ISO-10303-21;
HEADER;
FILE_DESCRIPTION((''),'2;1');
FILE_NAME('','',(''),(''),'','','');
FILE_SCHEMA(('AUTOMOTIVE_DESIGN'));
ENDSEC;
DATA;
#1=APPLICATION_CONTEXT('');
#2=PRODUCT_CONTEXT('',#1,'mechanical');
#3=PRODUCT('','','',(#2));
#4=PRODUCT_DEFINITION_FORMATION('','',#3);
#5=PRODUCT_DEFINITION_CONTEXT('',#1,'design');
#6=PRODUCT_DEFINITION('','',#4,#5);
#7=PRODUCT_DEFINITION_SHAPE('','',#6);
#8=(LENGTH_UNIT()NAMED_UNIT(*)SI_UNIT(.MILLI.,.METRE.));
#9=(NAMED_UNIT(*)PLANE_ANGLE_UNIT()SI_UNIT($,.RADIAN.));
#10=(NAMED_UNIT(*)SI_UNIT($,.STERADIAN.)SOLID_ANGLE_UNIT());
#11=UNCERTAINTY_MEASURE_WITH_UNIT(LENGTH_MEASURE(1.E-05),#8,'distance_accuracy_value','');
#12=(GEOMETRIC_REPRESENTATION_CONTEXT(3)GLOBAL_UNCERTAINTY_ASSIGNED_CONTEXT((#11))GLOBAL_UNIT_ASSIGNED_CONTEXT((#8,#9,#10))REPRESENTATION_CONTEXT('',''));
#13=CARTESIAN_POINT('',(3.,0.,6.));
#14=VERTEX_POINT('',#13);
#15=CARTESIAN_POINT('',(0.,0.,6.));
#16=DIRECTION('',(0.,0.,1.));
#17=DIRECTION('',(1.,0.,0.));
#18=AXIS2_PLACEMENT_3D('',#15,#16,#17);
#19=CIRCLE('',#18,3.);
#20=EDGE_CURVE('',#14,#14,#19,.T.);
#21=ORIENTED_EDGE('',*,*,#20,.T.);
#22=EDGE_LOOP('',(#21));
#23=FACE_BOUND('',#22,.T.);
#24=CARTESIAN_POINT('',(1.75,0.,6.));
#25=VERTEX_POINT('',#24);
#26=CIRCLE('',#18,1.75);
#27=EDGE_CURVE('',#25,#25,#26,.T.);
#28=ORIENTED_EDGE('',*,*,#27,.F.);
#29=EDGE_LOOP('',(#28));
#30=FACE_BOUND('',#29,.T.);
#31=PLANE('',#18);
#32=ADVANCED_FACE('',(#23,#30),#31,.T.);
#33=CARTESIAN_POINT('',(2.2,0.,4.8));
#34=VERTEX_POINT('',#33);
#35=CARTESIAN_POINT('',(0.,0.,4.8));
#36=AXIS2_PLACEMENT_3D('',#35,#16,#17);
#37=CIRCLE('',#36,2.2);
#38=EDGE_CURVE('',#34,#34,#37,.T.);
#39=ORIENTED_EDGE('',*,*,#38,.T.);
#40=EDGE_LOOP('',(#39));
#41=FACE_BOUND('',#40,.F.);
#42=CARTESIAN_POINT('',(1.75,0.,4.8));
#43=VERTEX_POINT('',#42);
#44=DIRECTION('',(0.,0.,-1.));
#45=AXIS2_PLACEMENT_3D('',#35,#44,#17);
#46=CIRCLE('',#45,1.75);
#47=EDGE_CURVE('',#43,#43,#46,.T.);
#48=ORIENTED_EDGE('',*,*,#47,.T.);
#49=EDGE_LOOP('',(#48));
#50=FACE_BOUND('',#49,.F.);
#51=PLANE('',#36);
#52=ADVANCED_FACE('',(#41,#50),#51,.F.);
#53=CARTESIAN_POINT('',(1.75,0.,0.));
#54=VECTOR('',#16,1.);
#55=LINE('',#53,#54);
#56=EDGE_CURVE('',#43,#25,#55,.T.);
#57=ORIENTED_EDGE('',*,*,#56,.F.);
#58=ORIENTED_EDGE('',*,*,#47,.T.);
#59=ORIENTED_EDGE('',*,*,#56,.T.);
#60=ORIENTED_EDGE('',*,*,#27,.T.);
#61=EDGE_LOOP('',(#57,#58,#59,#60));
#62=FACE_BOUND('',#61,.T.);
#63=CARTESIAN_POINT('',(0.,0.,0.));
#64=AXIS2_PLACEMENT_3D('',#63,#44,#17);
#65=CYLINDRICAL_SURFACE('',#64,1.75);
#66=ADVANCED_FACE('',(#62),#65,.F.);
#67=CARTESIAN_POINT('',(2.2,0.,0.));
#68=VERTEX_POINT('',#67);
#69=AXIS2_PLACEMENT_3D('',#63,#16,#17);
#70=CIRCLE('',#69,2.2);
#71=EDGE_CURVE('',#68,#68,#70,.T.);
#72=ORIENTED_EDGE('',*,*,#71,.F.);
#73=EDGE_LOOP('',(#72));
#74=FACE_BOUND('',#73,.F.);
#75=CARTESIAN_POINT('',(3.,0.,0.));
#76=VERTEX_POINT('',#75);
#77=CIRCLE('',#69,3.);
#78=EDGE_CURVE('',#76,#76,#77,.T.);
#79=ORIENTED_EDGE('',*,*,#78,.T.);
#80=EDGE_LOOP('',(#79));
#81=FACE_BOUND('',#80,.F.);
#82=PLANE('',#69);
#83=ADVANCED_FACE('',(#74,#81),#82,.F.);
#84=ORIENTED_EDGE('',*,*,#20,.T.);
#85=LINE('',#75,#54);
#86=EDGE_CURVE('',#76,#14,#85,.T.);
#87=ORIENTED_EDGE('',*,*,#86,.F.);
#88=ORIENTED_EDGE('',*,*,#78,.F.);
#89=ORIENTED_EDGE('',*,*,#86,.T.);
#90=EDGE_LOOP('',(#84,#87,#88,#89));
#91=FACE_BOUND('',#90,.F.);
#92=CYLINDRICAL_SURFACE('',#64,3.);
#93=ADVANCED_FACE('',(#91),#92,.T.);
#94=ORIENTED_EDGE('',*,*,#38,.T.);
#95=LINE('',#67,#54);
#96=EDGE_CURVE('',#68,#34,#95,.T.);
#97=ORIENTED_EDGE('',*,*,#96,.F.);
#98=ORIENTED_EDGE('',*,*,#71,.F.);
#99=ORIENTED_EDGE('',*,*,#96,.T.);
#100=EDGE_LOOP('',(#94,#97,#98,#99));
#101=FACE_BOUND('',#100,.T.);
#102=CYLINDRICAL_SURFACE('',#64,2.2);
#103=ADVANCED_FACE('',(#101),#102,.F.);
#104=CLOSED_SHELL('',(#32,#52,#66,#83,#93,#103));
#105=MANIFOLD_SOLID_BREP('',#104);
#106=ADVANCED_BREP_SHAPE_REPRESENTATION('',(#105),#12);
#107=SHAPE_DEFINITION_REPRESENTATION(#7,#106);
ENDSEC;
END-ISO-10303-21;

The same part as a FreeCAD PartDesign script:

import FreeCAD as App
import Part
import Sketcher
from FreeCAD import Vector
Q = App.Units.Quantity

doc = App.newDocument("Part")
params = doc.addObject("Spreadsheet::Sheet", "Params")
for row, (alias, value) in enumerate([
    ("sketch1_diameter", "6 mm"),
    ("sketch1_diameter2", "3.5 mm"),
    ("pad1_length", "6 mm"),
    ("sketch2_diameter", "4.4 mm"),
    ("pocket1_length", "4.8 mm"),
], start=1):
    params.set(f"A{row}", alias)
    params.set(f"B{row}", "=" + value)
    params.setAlias(f"B{row}", alias)

body = doc.addObject("PartDesign::Body", "Body")

# Sketch on XY plane
sketch1 = body.newObject("Sketcher::SketchObject", "Sketch")
sketch1.AttachmentSupport = (doc.getObject("XY_Plane"), [""])
sketch1.MapMode = "FlatFace"
sketch1.addGeometry([
    Part.Circle(Vector(0, 0, 0), Vector(0, 0, 1), 3),
    Part.Circle(Vector(0, 0, 0), Vector(0, 0, 1), 1.8),
], False)
sketch1.addConstraint([
    Sketcher.Constraint("Coincident", 0, 3, -1, 1),
    Sketcher.Constraint("Coincident", 1, 3, -1, 1),
    Sketcher.Constraint("Diameter", 0, Q("6 mm")),
    Sketcher.Constraint("Diameter", 1, Q("3.5 mm")),
])
sketch1.setExpression("Constraints[2]", "Params.sketch1_diameter")
sketch1.setExpression("Constraints[3]", "Params.sketch1_diameter2")
pad1 = body.newObject("PartDesign::Pad", "Pad")
pad1.Profile = sketch1
pad1.setExpression("Length", "Params.pad1_length")

# Sketch on XY plane
sketch2 = body.newObject("Sketcher::SketchObject", "Sketch001")
sketch2.AttachmentSupport = (doc.getObject("XY_Plane"), [""])
sketch2.MapMode = "FlatFace"
sketch2.addGeometry(Part.Circle(Vector(0, 0, 0), Vector(0, 0, 1), 2.2), False)
sketch2.addConstraint([
    Sketcher.Constraint("Coincident", 0, 3, -1, 1),
    Sketcher.Constraint("Diameter", 0, Q("4.4 mm")),
])
sketch2.setExpression("Constraints[1]", "Params.sketch2_diameter")
pocket1 = body.newObject("PartDesign::Pocket", "Pocket")
pocket1.Profile = sketch2
pocket1.setExpression("Length", "Params.pocket1_length")
pocket1.Reversed = True

doc.recompute()
